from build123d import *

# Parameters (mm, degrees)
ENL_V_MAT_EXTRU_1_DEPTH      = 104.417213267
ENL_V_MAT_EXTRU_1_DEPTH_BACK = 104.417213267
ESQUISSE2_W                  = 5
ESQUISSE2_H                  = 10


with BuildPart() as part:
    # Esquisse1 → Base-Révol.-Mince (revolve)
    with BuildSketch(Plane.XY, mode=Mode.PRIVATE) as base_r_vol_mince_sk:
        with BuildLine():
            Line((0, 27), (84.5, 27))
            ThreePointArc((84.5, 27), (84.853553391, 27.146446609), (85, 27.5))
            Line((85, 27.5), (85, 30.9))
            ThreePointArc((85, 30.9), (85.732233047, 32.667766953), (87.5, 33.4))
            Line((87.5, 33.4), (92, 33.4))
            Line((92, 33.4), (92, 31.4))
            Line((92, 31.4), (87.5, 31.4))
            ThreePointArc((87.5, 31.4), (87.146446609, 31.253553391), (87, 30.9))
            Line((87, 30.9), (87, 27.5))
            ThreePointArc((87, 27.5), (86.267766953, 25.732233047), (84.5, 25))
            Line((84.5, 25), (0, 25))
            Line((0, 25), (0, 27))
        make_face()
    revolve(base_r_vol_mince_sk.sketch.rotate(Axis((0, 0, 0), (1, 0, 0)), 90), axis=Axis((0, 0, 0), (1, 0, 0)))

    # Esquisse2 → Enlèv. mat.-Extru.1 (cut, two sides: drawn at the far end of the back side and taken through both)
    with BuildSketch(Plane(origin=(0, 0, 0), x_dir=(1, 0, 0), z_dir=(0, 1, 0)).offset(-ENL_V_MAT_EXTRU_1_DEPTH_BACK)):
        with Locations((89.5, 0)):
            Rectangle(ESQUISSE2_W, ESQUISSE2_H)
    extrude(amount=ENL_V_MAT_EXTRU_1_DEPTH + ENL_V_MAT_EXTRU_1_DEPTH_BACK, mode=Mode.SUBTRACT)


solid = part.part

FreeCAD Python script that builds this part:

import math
import FreeCAD as App
import Part
import Sketcher

V = App.Vector

doc = App.newDocument("Part")
body = doc.addObject("PartDesign::Body", "Body")

# Sketch on XY plane
sketch1 = body.newObject("Sketcher::SketchObject", "Sketch")
sketch1.AttachmentSupport = (doc.getObject("XY_Plane"), [""])
sketch1.MapMode = "FlatFace"
sketch1.addGeometry([
    Part.LineSegment(V(84.5, 27, 0), V(0, 27, 0)),  # 0
    Part.LineSegment(V(0, 27, 0), V(0, 25, 0)),  # 1
    Part.LineSegment(V(0, 25, 0), V(84.5, 25, 0)),  # 2
    Part.ArcOfCircle(Part.Circle(V(84.5, 27.5, 0), V(0, 0, 1), 2.5), math.radians(-90), math.radians(0)),  # 3
    Part.LineSegment(V(87, 27.5, 0), V(87, 30.9, 0)),  # 4
    Part.ArcOfCircle(Part.Circle(V(87.5, 30.9, 0), V(0, 0, 1), 0.5), math.radians(90), math.radians(180)),  # 5
    Part.LineSegment(V(87.5, 31.4, 0), V(92, 31.4, 0)),  # 6
    Part.LineSegment(V(92, 31.4, 0), V(92, 33.4, 0)),  # 7
    Part.LineSegment(V(92, 33.4, 0), V(87.5, 33.4, 0)),  # 8
    Part.ArcOfCircle(Part.Circle(V(87.5, 30.9, 0), V(0, 0, 1), 2.5), math.radians(90), math.radians(180)),  # 9
    Part.LineSegment(V(85, 30.9, 0), V(85, 27.5, 0)),  # 10
    Part.ArcOfCircle(Part.Circle(V(84.5, 27.5, 0), V(0, 0, 1), 0.5), math.radians(-90), math.radians(0)),  # 11
], False)
sketch1.addConstraint([
    Sketcher.Constraint("Coincident", 0, 2, 1, 1),
    Sketcher.Constraint("Coincident", 1, 2, 2, 1),
    Sketcher.Constraint("Tangent", 2, 2, 3, 1),
    Sketcher.Constraint("Tangent", 3, 2, 4, 1),
    Sketcher.Constraint("Tangent", 4, 2, 5, 2),
    Sketcher.Constraint("Tangent", 5, 1, 6, 1),
    Sketcher.Constraint("Coincident", 6, 2, 7, 1),
    Sketcher.Constraint("Coincident", 7, 2, 8, 1),
    Sketcher.Constraint("Tangent", 8, 2, 9, 1),
    Sketcher.Constraint("Tangent", 9, 2, 10, 1),
    Sketcher.Constraint("Tangent", 10, 2, 11, 2),
    Sketcher.Constraint("Tangent", 11, 1, 0, 1),
    Sketcher.Constraint("Horizontal", 0),
    Sketcher.Constraint("Vertical", 1),
    Sketcher.Constraint("Horizontal", 2),
    Sketcher.Constraint("Vertical", 4),
    Sketcher.Constraint("Horizontal", 6),
    Sketcher.Constraint("Vertical", 7),
    Sketcher.Constraint("Horizontal", 8),
    Sketcher.Constraint("Vertical", 10),
    Sketcher.Constraint("Coincident", 9, 3, 5, 3),
    Sketcher.Constraint("Coincident", 11, 3, 3, 3),
    Sketcher.Constraint("Equal", 3, 9),
    Sketcher.Constraint("PointOnObject", 0, 2, -2),
    Sketcher.Constraint("Radius", 3, 2.5),
    Sketcher.Constraint("Radius", 5, 0.5),
    Sketcher.Constraint("DistanceX", 0, 2, 0, 1, 84.5),
    Sketcher.Constraint("DistanceX", 6, 1, 6, 2, 4.5),
    Sketcher.Constraint("DistanceY", 4, 1, 4, 2, 3.4),
    Sketcher.Constraint("DistanceY", -1, 1, 0, 2, 27.0),
])
revolution = body.newObject("PartDesign::Revolution", "Revolution")
revolution.Profile = sketch1
revolution.ReferenceAxis = (sketch1, ["H_Axis"])
revolution.Angle = 360

# Sketch on XZ plane
sketch2 = body.newObject("Sketcher::SketchObject", "Sketch001")
sketch2.AttachmentSupport = (doc.getObject("XZ_Plane"), [""])
sketch2.MapMode = "FlatFace"
sketch2.addGeometry([
    Part.LineSegment(V(87, -5, 0), V(87, 5, 0)),
    Part.LineSegment(V(87, 5, 0), V(92, 5, 0)),
    Part.LineSegment(V(92, 5, 0), V(92, -5, 0)),
    Part.LineSegment(V(92, -5, 0), V(87, -5, 0)),
], False)
sketch2.addConstraint([
    Sketcher.Constraint("Coincident", 0, 2, 1, 1),
    Sketcher.Constraint("Coincident", 1, 2, 2, 1),
    Sketcher.Constraint("Coincident", 2, 2, 3, 1),
    Sketcher.Constraint("Coincident", 3, 2, 0, 1),
    Sketcher.Constraint("Vertical", 0),
    Sketcher.Constraint("Horizontal", 1),
    Sketcher.Constraint("Vertical", 2),
    Sketcher.Constraint("Horizontal", 3),
    Sketcher.Constraint("DistanceX", 1, 1, 1, 2, 5.0),
    Sketcher.Constraint("DistanceY", 0, 1, 0, 2, 10.0),
    Sketcher.Constraint("DistanceX", -1, 1, 0, 2, 87.0),
    Sketcher.Constraint("DistanceY", -1, 1, 0, 2, 5.0),
])
pocket1 = body.newObject("PartDesign::Pocket", "Pocket")
pocket1.Profile = sketch2
pocket1.Type = "ThroughAll"
pocket1.Midplane = True

doc.recompute()
